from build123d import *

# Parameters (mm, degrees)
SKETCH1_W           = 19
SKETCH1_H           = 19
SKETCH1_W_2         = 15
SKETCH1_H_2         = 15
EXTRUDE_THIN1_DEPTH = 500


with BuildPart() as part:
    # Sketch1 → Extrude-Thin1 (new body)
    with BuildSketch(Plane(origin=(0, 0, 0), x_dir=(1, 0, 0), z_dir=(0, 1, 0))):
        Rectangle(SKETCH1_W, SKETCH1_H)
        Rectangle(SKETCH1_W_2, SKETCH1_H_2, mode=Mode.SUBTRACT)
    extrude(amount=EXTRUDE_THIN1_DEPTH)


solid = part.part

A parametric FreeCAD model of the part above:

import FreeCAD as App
import Part
import Sketcher
from FreeCAD import Vector

doc = App.newDocument("Part")
body = doc.addObject("PartDesign::Body", "Body")

# Sketch on XZ plane
sketch1 = body.newObject("Sketcher::SketchObject", "Sketch")
sketch1.AttachmentSupport = (doc.getObject("XZ_Plane"), [""])
sketch1.MapMode = "FlatFace"
sketch1.addGeometry([
    Part.LineSegment(Vector(-10, -10, 0), Vector(-10, 10, 0)),  # 0
    Part.LineSegment(Vector(-10, 10, 0), Vector(10, 10, 0)),  # 1
    Part.LineSegment(Vector(10, 10, 0), Vector(10, -10, 0)),  # 2
    Part.LineSegment(Vector(10, -10, 0), Vector(-10, -10, 0)),  # 3
    Part.LineSegment(Vector(8, 8, 0), Vector(-8, 8, 0)),  # 4
    Part.LineSegment(Vector(-8, 8, 0), Vector(-8, -8, 0)),  # 5
    Part.LineSegment(Vector(-8, -8, 0), Vector(8, -8, 0)),  # 6
    Part.LineSegment(Vector(8, -8, 0), Vector(8, 8, 0)),  # 7
], False)
sketch1.addConstraint([
    Sketcher.Constraint("Coincident", 0, 2, 1, 1),
    Sketcher.Constraint("Coincident", 1, 2, 2, 1),
    Sketcher.Constraint("Coincident", 2, 2, 3, 1),
    Sketcher.Constraint("Coincident", 3, 2, 0, 1),
    Sketcher.Constraint("Coincident", 4, 2, 5, 1),
    Sketcher.Constraint("Coincident", 5, 2, 6, 1),
    Sketcher.Constraint("Coincident", 6, 2, 7, 1),
    Sketcher.Constraint("Coincident", 7, 2, 4, 1),
    Sketcher.Constraint("Vertical", 0),
    Sketcher.Constraint("Horizontal", 1),
    Sketcher.Constraint("Vertical", 2),
    Sketcher.Constraint("Horizontal", 3),
    Sketcher.Constraint("Horizontal", 4),
    Sketcher.Constraint("Vertical", 5),
    Sketcher.Constraint("Horizontal", 6),
    Sketcher.Constraint("Vertical", 7),
    Sketcher.Constraint("Symmetric", 0, 2, 2, 2, -1, 1),
    Sketcher.Constraint("Symmetric", 4, 2, 6, 2, -1, 1),
    Sketcher.Constraint("Equal", 3, 0),
    Sketcher.Constraint("Equal", 6, 5),
    Sketcher.Constraint("DistanceX", 1, 1, 1, 2, 19.0),
    Sketcher.Constraint("DistanceX", 4, 2, 4, 1, 15.0),
])
pad1 = body.newObject("PartDesign::Pad", "Pad")
pad1.Profile = sketch1
pad1.Length = 500
pad1.Reversed = True

doc.recompute()
